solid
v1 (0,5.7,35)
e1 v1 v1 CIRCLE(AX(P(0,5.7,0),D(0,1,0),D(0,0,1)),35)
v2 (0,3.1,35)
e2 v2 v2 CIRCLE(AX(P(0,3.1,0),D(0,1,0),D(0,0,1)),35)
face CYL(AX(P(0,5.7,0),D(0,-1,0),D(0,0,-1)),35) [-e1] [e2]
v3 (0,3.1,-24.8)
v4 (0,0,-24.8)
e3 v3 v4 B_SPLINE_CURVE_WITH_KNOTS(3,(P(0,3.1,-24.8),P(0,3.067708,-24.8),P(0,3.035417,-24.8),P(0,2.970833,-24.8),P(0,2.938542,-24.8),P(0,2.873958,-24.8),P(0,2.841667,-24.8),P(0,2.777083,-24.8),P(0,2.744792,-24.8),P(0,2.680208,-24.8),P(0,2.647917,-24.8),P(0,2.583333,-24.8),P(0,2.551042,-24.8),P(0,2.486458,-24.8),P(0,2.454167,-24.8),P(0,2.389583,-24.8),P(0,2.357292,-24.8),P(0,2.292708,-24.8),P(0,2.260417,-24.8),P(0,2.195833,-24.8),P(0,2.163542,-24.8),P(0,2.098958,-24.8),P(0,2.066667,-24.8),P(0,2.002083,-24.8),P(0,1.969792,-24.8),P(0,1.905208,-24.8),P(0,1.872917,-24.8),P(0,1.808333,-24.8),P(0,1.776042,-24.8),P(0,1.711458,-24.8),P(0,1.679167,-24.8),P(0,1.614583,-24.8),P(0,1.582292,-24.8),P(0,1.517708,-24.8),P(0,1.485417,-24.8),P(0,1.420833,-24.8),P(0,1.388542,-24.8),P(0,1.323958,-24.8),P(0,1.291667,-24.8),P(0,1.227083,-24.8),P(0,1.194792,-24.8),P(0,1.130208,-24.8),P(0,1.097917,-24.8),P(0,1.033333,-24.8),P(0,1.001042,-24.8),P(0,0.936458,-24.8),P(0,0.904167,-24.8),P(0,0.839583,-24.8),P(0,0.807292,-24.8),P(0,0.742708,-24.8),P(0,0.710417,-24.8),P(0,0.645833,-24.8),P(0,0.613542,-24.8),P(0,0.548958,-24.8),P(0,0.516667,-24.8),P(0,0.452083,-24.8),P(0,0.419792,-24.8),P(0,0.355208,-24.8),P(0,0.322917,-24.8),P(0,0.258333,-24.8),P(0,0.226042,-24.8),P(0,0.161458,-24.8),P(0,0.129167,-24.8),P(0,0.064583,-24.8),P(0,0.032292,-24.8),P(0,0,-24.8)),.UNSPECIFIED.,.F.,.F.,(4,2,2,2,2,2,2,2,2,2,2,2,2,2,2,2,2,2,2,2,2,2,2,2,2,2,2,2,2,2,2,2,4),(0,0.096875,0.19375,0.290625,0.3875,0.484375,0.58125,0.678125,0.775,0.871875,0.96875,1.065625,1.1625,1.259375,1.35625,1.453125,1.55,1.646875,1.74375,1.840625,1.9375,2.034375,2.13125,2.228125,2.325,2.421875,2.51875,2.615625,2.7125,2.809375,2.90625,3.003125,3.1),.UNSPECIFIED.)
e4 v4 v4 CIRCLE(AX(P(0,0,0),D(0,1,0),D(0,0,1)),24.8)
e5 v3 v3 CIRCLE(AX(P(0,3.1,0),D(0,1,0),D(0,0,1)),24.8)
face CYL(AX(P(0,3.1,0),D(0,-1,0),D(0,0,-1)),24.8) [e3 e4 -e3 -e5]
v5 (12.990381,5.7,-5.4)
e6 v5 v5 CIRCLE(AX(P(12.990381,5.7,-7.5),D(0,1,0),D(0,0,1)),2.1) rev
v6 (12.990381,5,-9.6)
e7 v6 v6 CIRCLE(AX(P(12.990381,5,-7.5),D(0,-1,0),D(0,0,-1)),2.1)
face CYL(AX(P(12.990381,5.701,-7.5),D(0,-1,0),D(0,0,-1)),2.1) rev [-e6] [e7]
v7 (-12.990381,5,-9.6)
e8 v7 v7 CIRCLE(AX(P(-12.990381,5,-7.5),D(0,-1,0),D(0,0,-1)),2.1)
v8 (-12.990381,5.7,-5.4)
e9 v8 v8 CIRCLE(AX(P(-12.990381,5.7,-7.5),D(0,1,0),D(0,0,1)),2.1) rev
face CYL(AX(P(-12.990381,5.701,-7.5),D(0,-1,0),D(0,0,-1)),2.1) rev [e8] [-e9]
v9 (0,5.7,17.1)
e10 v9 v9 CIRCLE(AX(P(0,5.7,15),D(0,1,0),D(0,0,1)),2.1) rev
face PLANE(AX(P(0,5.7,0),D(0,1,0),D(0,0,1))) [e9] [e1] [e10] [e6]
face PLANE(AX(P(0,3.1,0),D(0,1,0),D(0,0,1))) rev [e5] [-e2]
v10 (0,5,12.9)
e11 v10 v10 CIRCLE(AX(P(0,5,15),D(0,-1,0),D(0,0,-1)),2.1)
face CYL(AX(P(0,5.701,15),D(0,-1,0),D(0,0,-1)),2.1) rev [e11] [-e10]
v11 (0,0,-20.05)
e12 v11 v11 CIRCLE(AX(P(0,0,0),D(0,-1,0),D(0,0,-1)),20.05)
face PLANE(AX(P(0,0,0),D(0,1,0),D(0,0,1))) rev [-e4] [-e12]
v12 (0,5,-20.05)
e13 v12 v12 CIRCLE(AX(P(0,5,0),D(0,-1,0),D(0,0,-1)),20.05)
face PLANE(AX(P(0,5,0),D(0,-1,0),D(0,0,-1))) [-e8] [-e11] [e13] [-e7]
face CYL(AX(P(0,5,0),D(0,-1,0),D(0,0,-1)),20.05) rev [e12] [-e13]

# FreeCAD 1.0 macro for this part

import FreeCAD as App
import Part
import Sketcher

V = App.Vector

doc = App.newDocument("Part")
body = doc.addObject("PartDesign::Body", "Body")

sketch1 = body.newObject("Sketcher::SketchObject", "Sketch")
sketch1.AttachmentSupport = (doc.getObject("XZ_Plane"), [""])
sketch1.MapMode = "FlatFace"
sketch1.addGeometry(Part.Circle(V(0, 0, 0), V(0, 0, 1), 24.8), False)
sketch1.addConstraint(Sketcher.Constraint("Coincident", 0, 3, -1, 1))
sketch1.addConstraint(Sketcher.Constraint("Diameter", 0, 49.6))
pad1 = body.newObject("PartDesign::Pad", "Pad")
pad1.Profile = sketch1
pad1.Length = 3.1
pad1.Reversed = True

sketch2 = body.newObject("Sketcher::SketchObject", "Sketch001")
sketch2.AttachmentSupport = (doc.getObject("XZ_Plane"), [""])
sketch2.MapMode = "FlatFace"
sketch2.AttachmentOffset = App.Placement(V(0, 0, -3.1), App.Rotation())
sketch2.addGeometry(Part.Circle(V(0, 0, 0), V(0, 0, 1), 35), False)
sketch2.addConstraint(Sketcher.Constraint("Coincident", 0, 3, -1, 1))
sketch2.addConstraint(Sketcher.Constraint("Diameter", 0, 70.0))
pad2 = body.newObject("PartDesign::Pad", "Pad001")
pad2.Profile = sketch2
pad2.Length = 2.6
pad2.Reversed = True

sketch3 = body.newObject("Sketcher::SketchObject", "Sketch002")
sketch3.AttachmentSupport = (doc.getObject("XZ_Plane"), [""])
sketch3.MapMode = "FlatFace"
sketch3.addGeometry(Part.Circle(V(0, 0, 0), V(0, 0, 1), 20.05), False)
sketch3.addConstraint(Sketcher.Constraint("Coincident", 0, 3, -1, 1))
sketch3.addConstraint(Sketcher.Constraint("Diameter", 0, 40.1))
pocket1 = body.newObject("PartDesign::Pocket", "Pocket")
pocket1.Profile = sketch3
pocket1.Length = 5

sketch4 = body.newObject("Sketcher::SketchObject", "Sketch003")
sketch4.AttachmentSupport = (doc.getObject("XZ_Plane"), [""])
sketch4.MapMode = "FlatFace"
sketch4.AttachmentOffset = App.Placement(V(0, 0, -5), App.Rotation())
sketch4.addGeometry(Part.Circle(V(0, 15, 0), V(0, 0, 1), 2.1), False)
sketch4.addConstraint(Sketcher.Constraint("PointOnObject", 0, 3, -2))
sketch4.addConstraint(Sketcher.Constraint("Diameter", 0, 4.2))
sketch4.addConstraint(Sketcher.Constraint("DistanceY", -1, 1, 0, 3, 15.0))
pocket2 = body.newObject("PartDesign::Pocket", "Pocket001")
pocket2.Profile = sketch4
pocket2.Type = "UpToFirst"

sketch5 = body.newObject("Sketcher::SketchObject", "Sketch004")
sketch5.AttachmentSupport = (doc.getObject("XZ_Plane"), [""])
sketch5.MapMode = "FlatFace"
sketch5.AttachmentOffset = App.Placement(V(0, 0, -5), App.Rotation())
sketch5.addGeometry(Part.Circle(V(-12.990381, -7.5, 0), V(0, 0, 1), 2.1), False)
sketch5.addConstraint(Sketcher.Constraint("Diameter", 0, 4.2))
sketch5.addConstraint(Sketcher.Constraint("DistanceY", 0, 3, -1, 1, 7.5))
sketch5.addConstraint(Sketcher.Constraint("DistanceX", 0, 3, -1, 1, 12.990381))
pocket3 = body.newObject("PartDesign::Pocket", "Pocket002")
pocket3.Profile = sketch5
pocket3.Type = "UpToFirst"

sketch6 = body.newObject("Sketcher::SketchObject", "Sketch005")
sketch6.AttachmentSupport = (doc.getObject("XZ_Plane"), [""])
sketch6.MapMode = "FlatFace"
sketch6.AttachmentOffset = App.Placement(V(0, 0, -5), App.Rotation())
sketch6.addGeometry(Part.Circle(V(12.990381, -7.5, 0), V(0, 0, 1), 2.1), False)
sketch6.addConstraint(Sketcher.Constraint("Diameter", 0, 4.2))
sketch6.addConstraint(Sketcher.Constraint("DistanceY", 0, 3, -1, 1, 7.5))
sketch6.addConstraint(Sketcher.Constraint("DistanceX", -1, 1, 0, 3, 12.990381))
pocket4 = body.newObject("PartDesign::Pocket", "Pocket003")
pocket4.Profile = sketch6
pocket4.Type = "UpToFirst"

doc.recompute()
